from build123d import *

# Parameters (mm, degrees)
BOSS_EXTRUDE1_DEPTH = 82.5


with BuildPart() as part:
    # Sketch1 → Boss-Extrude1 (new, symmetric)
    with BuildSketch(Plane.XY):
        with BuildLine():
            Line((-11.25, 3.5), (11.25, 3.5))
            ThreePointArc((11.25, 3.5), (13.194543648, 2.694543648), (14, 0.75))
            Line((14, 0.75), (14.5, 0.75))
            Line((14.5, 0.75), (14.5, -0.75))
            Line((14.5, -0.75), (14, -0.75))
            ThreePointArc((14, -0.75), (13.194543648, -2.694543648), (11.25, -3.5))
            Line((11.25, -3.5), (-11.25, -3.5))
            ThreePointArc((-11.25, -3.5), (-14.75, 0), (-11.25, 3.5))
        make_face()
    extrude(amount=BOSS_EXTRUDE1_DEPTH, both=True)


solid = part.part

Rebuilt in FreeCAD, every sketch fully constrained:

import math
import FreeCAD as App
import Part
import Sketcher
from FreeCAD import Vector

doc = App.newDocument("Part")
body = doc.addObject("PartDesign::Body", "Body")

# Sketch on XY plane
sketch1 = doc.addObject("Sketcher::SketchObject", "Sketch")
body.addObject(sketch1)
sketch1.AttachmentSupport = (doc.XY_Plane, [""])
sketch1.MapMode = "FlatFace"
sketch1.addGeometry(Part.LineSegment(Vector(11.2, 3.5, 0), Vector(-11.2, 3.5, 0)), False)
sketch1.addGeometry(Part.ArcOfCircle(Part.Circle(Vector(-11.2, 0, 0), Vector(0, 0, 1), 3.5), math.radians(90), math.radians(270)), False)
sketch1.addGeometry(Part.LineSegment(Vector(-11.2, -3.5, 0), Vector(11.2, -3.5, 0)), False)
sketch1.addGeometry(Part.ArcOfCircle(Part.Circle(Vector(11.2, -0.7, 0), Vector(0, 0, 1), 2.8), math.radians(-90), math.radians(0)), False)
sketch1.addGeometry(Part.LineSegment(Vector(14, -0.8, 0), Vector(14.5, -0.8, 0)), False)
sketch1.addGeometry(Part.LineSegment(Vector(14.5, -0.8, 0), Vector(14.5, 0.8, 0)), False)
sketch1.addGeometry(Part.LineSegment(Vector(14.5, 0.8, 0), Vector(14, 0.8, 0)), False)
sketch1.addGeometry(Part.ArcOfCircle(Part.Circle(Vector(11.2, 0.7, 0), Vector(0, 0, 1), 2.8), math.radians(0), math.radians(90)), False)
sketch1.addConstraint(Sketcher.Constraint("Tangent", 0, 2, 1, 1))
sketch1.addConstraint(Sketcher.Constraint("Tangent", 1, 2, 2, 1))
sketch1.addConstraint(Sketcher.Constraint("Tangent", 2, 2, 3, 1))
sketch1.addConstraint(Sketcher.Constraint("Coincident", 3, 2, 4, 1))
sketch1.addConstraint(Sketcher.Constraint("Coincident", 4, 2, 5, 1))
sketch1.addConstraint(Sketcher.Constraint("Coincident", 5, 2, 6, 1))
sketch1.addConstraint(Sketcher.Constraint("Coincident", 6, 2, 7, 1))
sketch1.addConstraint(Sketcher.Constraint("Tangent", 7, 2, 0, 1))
sketch1.addConstraint(Sketcher.Constraint("Horizontal", 0))
sketch1.addConstraint(Sketcher.Constraint("Horizontal", 2))
sketch1.addConstraint(Sketcher.Constraint("Horizontal", 4))
sketch1.addConstraint(Sketcher.Constraint("Vertical", 5))
sketch1.addConstraint(Sketcher.Constraint("Horizontal", 6))
sketch1.addConstraint(Sketcher.Constraint("Equal", 3, 7))
sketch1.addConstraint(Sketcher.Constraint("Symmetric", 0, 2, 2, 2, -1, 1))
sketch1.addConstraint(Sketcher.Constraint("Symmetric", 3, 2, 6, 2, -1))
sketch1.addConstraint(Sketcher.Constraint("Horizontal", 7, 3, 5, 2))
sketch1.addConstraint(Sketcher.Constraint("Radius", 1, 3.5))
sketch1.addConstraint(Sketcher.Constraint("Radius", 3, 2.75))
sketch1.addConstraint(Sketcher.Constraint("DistanceX", 0, 2, 0, 1, 22.5))
sketch1.addConstraint(Sketcher.Constraint("DistanceX", 4, 1, 4, 2, 0.5))
pad1 = doc.addObject("PartDesign::Pad", "Pad")
body.addObject(pad1)
pad1.Profile = sketch1
pad1.Length = 165
pad1.Midplane = True

doc.recompute()
